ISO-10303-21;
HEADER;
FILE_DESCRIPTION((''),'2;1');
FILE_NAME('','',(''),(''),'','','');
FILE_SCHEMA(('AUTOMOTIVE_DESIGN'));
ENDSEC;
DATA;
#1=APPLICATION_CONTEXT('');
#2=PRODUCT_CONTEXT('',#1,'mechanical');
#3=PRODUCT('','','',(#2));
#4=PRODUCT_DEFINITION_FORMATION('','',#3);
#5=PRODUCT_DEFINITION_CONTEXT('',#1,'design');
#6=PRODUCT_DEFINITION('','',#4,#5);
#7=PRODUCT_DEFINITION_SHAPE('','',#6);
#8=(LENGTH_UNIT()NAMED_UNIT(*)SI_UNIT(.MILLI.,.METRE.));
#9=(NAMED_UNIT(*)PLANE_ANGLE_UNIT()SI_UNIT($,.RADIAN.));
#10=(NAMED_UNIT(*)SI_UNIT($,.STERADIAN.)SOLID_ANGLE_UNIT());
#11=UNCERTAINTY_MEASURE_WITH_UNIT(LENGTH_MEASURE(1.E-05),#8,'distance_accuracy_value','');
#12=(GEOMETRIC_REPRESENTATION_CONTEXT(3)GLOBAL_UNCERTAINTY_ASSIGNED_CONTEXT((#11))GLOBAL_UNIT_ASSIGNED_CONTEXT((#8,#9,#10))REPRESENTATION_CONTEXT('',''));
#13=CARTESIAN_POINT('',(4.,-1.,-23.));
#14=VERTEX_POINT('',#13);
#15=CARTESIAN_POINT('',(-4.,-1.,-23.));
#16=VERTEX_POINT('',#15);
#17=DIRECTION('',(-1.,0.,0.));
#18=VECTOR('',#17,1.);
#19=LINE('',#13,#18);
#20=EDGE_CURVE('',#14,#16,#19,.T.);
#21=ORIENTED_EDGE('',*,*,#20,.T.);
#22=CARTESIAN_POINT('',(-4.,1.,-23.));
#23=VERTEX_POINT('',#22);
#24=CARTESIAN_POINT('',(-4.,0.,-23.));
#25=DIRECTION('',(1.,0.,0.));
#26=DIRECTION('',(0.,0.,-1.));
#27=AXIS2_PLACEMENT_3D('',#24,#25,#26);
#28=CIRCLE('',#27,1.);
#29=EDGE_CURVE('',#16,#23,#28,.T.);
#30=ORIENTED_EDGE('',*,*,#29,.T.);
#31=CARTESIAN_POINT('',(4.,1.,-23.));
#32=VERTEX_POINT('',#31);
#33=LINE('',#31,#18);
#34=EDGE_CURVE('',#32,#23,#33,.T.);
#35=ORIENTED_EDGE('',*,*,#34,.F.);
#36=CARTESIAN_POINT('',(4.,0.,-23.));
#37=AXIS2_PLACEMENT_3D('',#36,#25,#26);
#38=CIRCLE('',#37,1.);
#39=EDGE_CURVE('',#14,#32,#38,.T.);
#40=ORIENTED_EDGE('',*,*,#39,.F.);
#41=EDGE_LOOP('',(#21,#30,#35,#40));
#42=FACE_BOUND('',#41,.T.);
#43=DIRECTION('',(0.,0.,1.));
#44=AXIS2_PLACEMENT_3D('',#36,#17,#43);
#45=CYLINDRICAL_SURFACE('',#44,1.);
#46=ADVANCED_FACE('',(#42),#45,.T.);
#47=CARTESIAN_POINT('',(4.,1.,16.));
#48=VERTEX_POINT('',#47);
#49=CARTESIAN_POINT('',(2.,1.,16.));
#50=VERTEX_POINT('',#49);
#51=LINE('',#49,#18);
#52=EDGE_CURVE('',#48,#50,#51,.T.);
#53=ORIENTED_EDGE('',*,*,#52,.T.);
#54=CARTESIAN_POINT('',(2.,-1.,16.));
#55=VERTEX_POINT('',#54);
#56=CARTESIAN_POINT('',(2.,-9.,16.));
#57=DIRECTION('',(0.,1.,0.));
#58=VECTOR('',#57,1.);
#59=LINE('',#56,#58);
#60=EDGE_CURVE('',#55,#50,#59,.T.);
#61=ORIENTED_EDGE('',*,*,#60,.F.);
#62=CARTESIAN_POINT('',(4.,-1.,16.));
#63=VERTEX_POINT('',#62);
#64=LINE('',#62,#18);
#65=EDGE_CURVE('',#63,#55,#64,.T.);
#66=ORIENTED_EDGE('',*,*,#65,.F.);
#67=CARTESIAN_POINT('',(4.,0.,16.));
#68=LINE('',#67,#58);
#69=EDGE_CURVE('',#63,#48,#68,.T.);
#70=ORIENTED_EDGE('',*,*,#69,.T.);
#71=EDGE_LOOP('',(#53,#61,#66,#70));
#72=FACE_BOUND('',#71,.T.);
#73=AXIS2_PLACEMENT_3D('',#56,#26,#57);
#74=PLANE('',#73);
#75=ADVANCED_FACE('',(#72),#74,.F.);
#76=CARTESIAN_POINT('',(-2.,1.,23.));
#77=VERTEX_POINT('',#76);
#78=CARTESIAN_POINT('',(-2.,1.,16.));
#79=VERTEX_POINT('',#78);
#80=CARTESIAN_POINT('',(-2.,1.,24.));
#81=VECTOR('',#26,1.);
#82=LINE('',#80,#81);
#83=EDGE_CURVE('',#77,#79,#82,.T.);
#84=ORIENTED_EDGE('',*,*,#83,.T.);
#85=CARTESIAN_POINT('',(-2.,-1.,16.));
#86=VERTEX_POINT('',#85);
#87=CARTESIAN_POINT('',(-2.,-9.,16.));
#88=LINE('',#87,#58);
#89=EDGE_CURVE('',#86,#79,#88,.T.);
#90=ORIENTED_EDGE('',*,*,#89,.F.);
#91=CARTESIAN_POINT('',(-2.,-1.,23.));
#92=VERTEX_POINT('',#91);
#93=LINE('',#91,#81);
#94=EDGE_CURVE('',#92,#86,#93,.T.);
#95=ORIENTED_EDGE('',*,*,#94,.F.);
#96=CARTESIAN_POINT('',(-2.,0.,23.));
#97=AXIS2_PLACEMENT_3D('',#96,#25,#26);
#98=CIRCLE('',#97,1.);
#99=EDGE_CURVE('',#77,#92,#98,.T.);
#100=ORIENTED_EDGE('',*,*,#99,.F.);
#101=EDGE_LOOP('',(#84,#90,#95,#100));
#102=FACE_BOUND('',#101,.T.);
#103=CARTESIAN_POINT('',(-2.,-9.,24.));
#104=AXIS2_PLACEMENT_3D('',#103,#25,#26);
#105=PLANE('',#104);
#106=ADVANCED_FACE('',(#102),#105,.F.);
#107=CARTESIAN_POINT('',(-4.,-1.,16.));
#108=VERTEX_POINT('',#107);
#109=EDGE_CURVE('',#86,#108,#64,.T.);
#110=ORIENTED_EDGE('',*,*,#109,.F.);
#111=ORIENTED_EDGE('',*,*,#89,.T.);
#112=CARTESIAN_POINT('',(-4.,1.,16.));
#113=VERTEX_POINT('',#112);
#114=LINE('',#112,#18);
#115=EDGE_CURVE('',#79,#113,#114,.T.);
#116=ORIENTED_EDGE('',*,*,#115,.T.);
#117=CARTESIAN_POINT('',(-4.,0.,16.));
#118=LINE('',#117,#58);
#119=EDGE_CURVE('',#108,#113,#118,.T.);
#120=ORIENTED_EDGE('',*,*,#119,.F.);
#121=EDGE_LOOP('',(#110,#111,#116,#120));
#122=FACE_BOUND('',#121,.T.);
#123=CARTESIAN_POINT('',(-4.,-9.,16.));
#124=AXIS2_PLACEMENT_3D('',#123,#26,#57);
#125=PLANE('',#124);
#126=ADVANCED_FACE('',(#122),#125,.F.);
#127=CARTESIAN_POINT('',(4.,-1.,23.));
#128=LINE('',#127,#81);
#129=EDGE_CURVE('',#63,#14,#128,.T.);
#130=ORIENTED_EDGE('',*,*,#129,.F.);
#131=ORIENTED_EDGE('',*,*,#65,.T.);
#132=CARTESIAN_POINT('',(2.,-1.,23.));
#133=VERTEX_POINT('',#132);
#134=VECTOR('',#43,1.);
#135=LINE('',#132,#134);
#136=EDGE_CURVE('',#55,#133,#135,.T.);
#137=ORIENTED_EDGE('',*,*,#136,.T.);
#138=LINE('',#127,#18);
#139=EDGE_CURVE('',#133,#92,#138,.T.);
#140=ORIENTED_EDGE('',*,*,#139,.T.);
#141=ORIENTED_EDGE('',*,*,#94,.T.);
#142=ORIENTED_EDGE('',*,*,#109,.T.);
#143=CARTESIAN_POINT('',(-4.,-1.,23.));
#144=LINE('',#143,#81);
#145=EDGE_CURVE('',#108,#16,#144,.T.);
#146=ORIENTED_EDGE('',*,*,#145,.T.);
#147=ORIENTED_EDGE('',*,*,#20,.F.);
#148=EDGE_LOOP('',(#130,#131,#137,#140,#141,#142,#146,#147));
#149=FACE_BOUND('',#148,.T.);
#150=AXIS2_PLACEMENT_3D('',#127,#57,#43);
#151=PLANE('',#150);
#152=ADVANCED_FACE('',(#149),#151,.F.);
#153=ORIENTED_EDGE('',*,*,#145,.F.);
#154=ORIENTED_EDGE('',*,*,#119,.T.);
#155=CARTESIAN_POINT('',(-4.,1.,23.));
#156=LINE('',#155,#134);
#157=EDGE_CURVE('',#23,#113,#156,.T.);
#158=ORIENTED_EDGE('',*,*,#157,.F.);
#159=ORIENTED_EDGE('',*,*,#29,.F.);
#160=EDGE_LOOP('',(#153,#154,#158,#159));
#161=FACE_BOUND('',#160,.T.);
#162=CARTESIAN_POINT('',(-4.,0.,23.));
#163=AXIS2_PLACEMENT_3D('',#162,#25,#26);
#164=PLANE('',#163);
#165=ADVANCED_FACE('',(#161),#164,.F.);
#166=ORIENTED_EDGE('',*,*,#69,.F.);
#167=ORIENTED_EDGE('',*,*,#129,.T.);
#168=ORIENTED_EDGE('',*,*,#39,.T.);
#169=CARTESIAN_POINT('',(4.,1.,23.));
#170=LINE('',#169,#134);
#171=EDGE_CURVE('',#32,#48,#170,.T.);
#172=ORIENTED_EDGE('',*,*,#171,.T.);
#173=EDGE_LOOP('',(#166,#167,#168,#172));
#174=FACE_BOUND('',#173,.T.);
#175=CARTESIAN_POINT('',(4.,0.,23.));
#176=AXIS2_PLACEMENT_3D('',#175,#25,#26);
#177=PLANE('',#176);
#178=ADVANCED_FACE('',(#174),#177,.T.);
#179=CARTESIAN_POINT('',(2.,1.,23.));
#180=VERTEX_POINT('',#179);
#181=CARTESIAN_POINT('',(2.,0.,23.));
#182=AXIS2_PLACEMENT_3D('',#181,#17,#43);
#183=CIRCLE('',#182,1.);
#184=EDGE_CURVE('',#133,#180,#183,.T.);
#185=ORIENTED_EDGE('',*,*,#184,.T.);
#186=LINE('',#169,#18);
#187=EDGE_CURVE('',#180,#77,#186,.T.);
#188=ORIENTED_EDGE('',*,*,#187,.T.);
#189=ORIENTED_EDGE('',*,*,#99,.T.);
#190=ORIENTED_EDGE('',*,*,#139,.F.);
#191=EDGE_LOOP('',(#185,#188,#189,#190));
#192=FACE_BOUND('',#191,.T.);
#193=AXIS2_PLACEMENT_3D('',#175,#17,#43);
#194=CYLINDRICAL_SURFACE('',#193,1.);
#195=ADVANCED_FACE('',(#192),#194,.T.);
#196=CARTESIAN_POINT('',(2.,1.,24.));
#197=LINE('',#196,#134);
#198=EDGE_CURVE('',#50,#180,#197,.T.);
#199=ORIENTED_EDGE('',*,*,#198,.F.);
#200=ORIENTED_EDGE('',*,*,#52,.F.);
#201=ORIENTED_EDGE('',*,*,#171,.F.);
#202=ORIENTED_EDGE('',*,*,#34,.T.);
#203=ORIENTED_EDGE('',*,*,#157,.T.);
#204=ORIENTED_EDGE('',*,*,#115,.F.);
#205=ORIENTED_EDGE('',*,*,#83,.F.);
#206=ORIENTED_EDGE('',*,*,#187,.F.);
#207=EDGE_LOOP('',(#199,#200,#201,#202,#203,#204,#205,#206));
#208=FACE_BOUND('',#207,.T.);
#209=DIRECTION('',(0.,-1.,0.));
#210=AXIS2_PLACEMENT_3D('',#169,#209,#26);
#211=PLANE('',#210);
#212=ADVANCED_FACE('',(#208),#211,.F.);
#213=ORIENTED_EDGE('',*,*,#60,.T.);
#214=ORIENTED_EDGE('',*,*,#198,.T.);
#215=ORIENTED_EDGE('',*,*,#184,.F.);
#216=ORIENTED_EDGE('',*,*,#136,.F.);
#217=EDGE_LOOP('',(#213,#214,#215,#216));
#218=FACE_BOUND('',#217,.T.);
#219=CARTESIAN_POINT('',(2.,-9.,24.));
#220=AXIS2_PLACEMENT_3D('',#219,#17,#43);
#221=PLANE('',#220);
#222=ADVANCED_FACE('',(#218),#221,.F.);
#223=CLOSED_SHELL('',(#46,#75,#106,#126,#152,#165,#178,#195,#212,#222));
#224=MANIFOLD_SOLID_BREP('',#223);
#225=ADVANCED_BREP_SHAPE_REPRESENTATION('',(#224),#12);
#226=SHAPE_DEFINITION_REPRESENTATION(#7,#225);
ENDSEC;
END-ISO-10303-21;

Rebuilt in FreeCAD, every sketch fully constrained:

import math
import FreeCAD as App
import Part
import Sketcher
from FreeCAD import Vector

doc = App.newDocument("Part")
params = doc.addObject("Spreadsheet::Sheet", "Params")
for row, (alias, value) in enumerate([
    ("sketch1_radius", "1 mm"),
    ("sketch1_height", "46 mm"),
    ("pad1_length", "8 mm"),
    ("sketch2_width", "2 mm"),
    ("sketch2_height", "8 mm"),
    ("pocket1_length", "10 mm"),
], start=1):
    params.set(f"A{row}", alias)
    params.set(f"B{row}", "=" + value)
    params.setAlias(f"B{row}", alias)

body = doc.addObject("PartDesign::Body", "Body")

sketch1 = body.newObject("Sketcher::SketchObject", "Sketch")
sketch1.AttachmentSupport = (doc.getObject("YZ_Plane"), [""])
sketch1.MapMode = "FlatFace"
sketch1.addGeometry([
    Part.LineSegment(Vector(1, -23, 0), Vector(1, 23, 0)),
    Part.ArcOfCircle(Part.Circle(Vector(0, 23, 0), Vector(0, 0, 1), 1), math.radians(0), math.radians(180)),
    Part.LineSegment(Vector(-1, 23, 0), Vector(-1, -23, 0)),
    Part.ArcOfCircle(Part.Circle(Vector(0, -23, 0), Vector(0, 0, 1), 1), math.radians(180), math.radians(360)),
], False)
sketch1.addConstraint([
    Sketcher.Constraint("Tangent", 0, 2, 1, 1),
    Sketcher.Constraint("Tangent", 1, 2, 2, 1),
    Sketcher.Constraint("Tangent", 2, 2, 3, 1),
    Sketcher.Constraint("Tangent", 3, 2, 0, 1),
    Sketcher.Constraint("Vertical", 0),
    Sketcher.Constraint("Vertical", 2),
    Sketcher.Constraint("Symmetric", 1, 3, 3, 3, -1, 1),
    Sketcher.Constraint("Radius", 1, 1.0),
    Sketcher.Constraint("DistanceY", 0, 1, 0, 2, 46.0),
])
sketch1.setExpression("Constraints[7]", "Params.sketch1_radius")
sketch1.setExpression("Constraints[8]", "Params.sketch1_height")
pad1 = body.newObject("PartDesign::Pad", "Pad")
pad1.Profile = sketch1
pad1.setExpression("Length", "Params.pad1_length")
pad1.Midplane = True

sketch2 = body.newObject("Sketcher::SketchObject", "Sketch001")
sketch2.AttachmentSupport = (doc.getObject("XZ_Plane"), [""])
sketch2.MapMode = "FlatFace"
sketch2.AttachmentOffset = App.Placement(Vector(0, 0, -1), App.Rotation())
sketch2.addGeometry([
    Part.LineSegment(Vector(-4, 16, 0), Vector(-4, 24, 0)),
    Part.LineSegment(Vector(-4, 24, 0), Vector(-2, 24, 0)),
    Part.LineSegment(Vector(-2, 24, 0), Vector(-2, 16, 0)),
    Part.LineSegment(Vector(-2, 16, 0), Vector(-4, 16, 0)),
    Part.LineSegment(Vector(2, 16, 0), Vector(2, 24, 0)),
    Part.LineSegment(Vector(2, 24, 0), Vector(4, 24, 0)),
    Part.LineSegment(Vector(4, 24, 0), Vector(4, 16, 0)),
    Part.LineSegment(Vector(4, 16, 0), Vector(2, 16, 0)),
], False)
sketch2.addConstraint([
    Sketcher.Constraint("Coincident", 0, 2, 1, 1),
    Sketcher.Constraint("Coincident", 1, 2, 2, 1),
    Sketcher.Constraint("Coincident", 2, 2, 3, 1),
    Sketcher.Constraint("Coincident", 3, 2, 0, 1),
    Sketcher.Constraint("Coincident", 4, 2, 5, 1),
    Sketcher.Constraint("Coincident", 5, 2, 6, 1),
    Sketcher.Constraint("Coincident", 6, 2, 7, 1),
    Sketcher.Constraint("Coincident", 7, 2, 4, 1),
    Sketcher.Constraint("Vertical", 0),
    Sketcher.Constraint("Horizontal", 1),
    Sketcher.Constraint("Vertical", 2),
    Sketcher.Constraint("Horizontal", 3),
    Sketcher.Constraint("Vertical", 4),
    Sketcher.Constraint("Horizontal", 5),
    Sketcher.Constraint("Vertical", 6),
    Sketcher.Constraint("Horizontal", 7),
    Sketcher.Constraint("Symmetric", 1, 2, 4, 2, -2),
    Sketcher.Constraint("Symmetric", 3, 2, 6, 2, -2),
    Sketcher.Constraint("DistanceX", 1, 1, 1, 2, 2.0),
    Sketcher.Constraint("DistanceY", 0, 1, 0, 2, 8.0),
    Sketcher.Constraint("DistanceX", 0, 2, -1, 1, 4.0),
    Sketcher.Constraint("DistanceY", -1, 1, 0, 2, 24.0),
])
sketch2.setExpression("Constraints[18]", "Params.sketch2_width")
sketch2.setExpression("Constraints[19]", "Params.sketch2_height")
pocket1 = body.newObject("PartDesign::Pocket", "Pocket")
pocket1.Profile = sketch2
pocket1.setExpression("Length", "Params.pocket1_length")
pocket1.Reversed = True

doc.recompute()
